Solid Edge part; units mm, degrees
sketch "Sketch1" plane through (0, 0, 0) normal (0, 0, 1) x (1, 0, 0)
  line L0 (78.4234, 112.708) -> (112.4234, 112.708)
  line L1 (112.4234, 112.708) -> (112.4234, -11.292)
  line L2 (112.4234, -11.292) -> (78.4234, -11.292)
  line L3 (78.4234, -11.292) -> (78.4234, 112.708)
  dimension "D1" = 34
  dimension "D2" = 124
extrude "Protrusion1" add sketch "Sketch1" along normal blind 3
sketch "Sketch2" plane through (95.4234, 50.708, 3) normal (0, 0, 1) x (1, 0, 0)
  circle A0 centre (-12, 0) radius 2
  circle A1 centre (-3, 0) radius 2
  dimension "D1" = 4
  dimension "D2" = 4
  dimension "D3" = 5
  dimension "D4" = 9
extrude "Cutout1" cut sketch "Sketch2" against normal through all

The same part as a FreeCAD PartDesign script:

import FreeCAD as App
import Part
import Sketcher

V = App.Vector
Q = App.Units.Quantity

doc = App.newDocument("Part")
params = doc.addObject("Spreadsheet::Sheet", "Params")
for row, (alias, value) in enumerate([
    ("sketch1_width", "34 mm"),
    ("sketch1_height", "124 mm"),
    ("pad1_length", "3 mm"),
    ("sketch2_diameter", "4 mm"),
], start=1):
    params.set(f"A{row}", alias)
    params.set(f"B{row}", "=" + value)
    params.setAlias(f"B{row}", alias)

body = doc.addObject("PartDesign::Body", "Body")

sketch1 = body.newObject("Sketcher::SketchObject", "Sketch")
sketch1.AttachmentSupport = (doc.getObject("XY_Plane"), [""])
sketch1.MapMode = "FlatFace"
sketch1.addGeometry(Part.LineSegment(V(112, 113, 0), V(78, 113, 0)), False)
sketch1.addGeometry(Part.LineSegment(V(78, 113, 0), V(78, -11, 0)), False)
sketch1.addGeometry(Part.LineSegment(V(78, -11, 0), V(112, -11, 0)), False)
sketch1.addGeometry(Part.LineSegment(V(112, -11, 0), V(112, 113, 0)), False)
sketch1.addConstraint(Sketcher.Constraint("Coincident", 0, 2, 1, 1))
sketch1.addConstraint(Sketcher.Constraint("Coincident", 1, 2, 2, 1))
sketch1.addConstraint(Sketcher.Constraint("Coincident", 2, 2, 3, 1))
sketch1.addConstraint(Sketcher.Constraint("Coincident", 3, 2, 0, 1))
sketch1.addConstraint(Sketcher.Constraint("Horizontal", 0))
sketch1.addConstraint(Sketcher.Constraint("Vertical", 1))
sketch1.addConstraint(Sketcher.Constraint("Horizontal", 2))
sketch1.addConstraint(Sketcher.Constraint("Vertical", 3))
sketch1.addConstraint(Sketcher.Constraint("DistanceX", 0, 2, 0, 1, Q("34 mm")))
sketch1.addConstraint(Sketcher.Constraint("DistanceY", 1, 2, 1, 1, Q("124 mm")))
sketch1.addConstraint(Sketcher.Constraint("DistanceX", -1, 1, 0, 2, Q("78.4234 mm")))
sketch1.addConstraint(Sketcher.Constraint("DistanceY", -1, 1, 0, 2, Q("112.708 mm")))
sketch1.setExpression("Constraints[8]", "Params.sketch1_width")
sketch1.setExpression("Constraints[9]", "Params.sketch1_height")
pad1 = body.newObject("PartDesign::Pad", "Pad")
pad1.Profile = sketch1
pad1.setExpression("Length", "Params.pad1_length")

sketch2 = body.newObject("Sketcher::SketchObject", "Sketch001")
sketch2.AttachmentSupport = (doc.getObject("XY_Plane"), [""])
sketch2.MapMode = "FlatFace"
sketch2.AttachmentOffset = App.Placement(V(0, 0, 3), App.Rotation())
sketch2.addGeometry(Part.Circle(V(83.4, 50.7, 0), V(0, 0, 1), 2), False)
sketch2.addGeometry(Part.Circle(V(92.4, 50.7, 0), V(0, 0, 1), 2), False)
sketch2.addConstraint(Sketcher.Constraint("Equal", 0, 1))
sketch2.addConstraint(Sketcher.Constraint("Horizontal", 0, 3, 1, 3))
sketch2.addConstraint(Sketcher.Constraint("Diameter", 0, Q("4 mm")))
sketch2.addConstraint(Sketcher.Constraint("DistanceX", 0, 3, 1, 3, Q("9 mm")))
sketch2.addConstraint(Sketcher.Constraint("DistanceY", -1, 1, 0, 3, Q("50.708 mm")))
sketch2.addConstraint(Sketcher.Constraint("DistanceX", -1, 1, 0, 3, Q("83.4234 mm")))
sketch2.setExpression("Constraints[2]", "Params.sketch2_diameter")
pocket1 = body.newObject("PartDesign::Pocket", "Pocket")
pocket1.Profile = sketch2
pocket1.Type = "ThroughAll"

doc.recompute()
